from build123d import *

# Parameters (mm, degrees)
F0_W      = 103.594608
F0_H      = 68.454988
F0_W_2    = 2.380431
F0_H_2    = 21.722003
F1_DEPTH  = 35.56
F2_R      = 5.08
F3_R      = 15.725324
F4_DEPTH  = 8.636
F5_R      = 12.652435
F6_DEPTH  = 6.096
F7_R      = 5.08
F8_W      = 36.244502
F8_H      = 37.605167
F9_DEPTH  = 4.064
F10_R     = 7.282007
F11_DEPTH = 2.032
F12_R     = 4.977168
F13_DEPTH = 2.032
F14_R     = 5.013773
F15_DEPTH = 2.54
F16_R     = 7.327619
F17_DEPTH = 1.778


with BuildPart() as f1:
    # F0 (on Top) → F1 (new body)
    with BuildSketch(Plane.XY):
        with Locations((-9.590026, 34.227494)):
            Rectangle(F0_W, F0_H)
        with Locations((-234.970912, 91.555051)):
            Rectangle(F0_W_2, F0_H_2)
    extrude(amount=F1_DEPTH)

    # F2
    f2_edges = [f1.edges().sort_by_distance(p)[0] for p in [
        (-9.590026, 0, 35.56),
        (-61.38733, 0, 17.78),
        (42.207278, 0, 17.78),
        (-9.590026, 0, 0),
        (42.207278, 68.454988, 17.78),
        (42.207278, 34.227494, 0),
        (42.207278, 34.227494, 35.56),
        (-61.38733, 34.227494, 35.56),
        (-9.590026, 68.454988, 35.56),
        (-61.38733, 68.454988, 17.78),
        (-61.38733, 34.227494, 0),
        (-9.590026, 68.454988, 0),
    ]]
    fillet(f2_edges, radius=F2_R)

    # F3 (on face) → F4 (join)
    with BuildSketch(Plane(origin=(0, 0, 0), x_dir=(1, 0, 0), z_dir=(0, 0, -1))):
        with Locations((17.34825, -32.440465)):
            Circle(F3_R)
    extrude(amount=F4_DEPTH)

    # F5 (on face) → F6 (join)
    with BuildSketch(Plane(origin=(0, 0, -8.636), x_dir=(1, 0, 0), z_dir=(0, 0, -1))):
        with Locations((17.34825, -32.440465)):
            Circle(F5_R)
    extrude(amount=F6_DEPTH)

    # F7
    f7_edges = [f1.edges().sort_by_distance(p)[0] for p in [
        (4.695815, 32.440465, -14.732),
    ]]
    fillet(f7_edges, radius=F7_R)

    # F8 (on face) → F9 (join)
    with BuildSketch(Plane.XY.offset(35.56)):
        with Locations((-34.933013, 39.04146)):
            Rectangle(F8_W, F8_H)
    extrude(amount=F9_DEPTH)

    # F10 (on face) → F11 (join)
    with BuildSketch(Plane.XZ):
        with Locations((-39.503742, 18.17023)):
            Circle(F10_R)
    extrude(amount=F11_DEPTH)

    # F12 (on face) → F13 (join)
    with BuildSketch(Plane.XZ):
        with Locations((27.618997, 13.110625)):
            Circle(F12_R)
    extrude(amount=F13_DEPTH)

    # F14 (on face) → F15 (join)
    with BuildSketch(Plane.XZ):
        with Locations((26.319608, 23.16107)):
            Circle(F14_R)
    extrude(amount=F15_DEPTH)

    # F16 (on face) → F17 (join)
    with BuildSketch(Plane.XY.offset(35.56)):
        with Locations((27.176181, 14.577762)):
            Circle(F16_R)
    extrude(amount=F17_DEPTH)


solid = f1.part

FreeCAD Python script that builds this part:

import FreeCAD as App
import Part
import Sketcher

V = App.Vector


def edges_at(feature, points):
    """Names of the edges that pass closest to the given points."""
    edges = feature.Shape.Edges
    near = lambda p: min(range(len(edges)), key=lambda i: edges[i].distToShape(Part.Vertex(*p))[0])
    return sorted({f"Edge{near(p) + 1}" for p in points})

doc = App.newDocument("Part")
params = doc.addObject("Spreadsheet::Sheet", "Params")
for row, (alias, value) in enumerate([
    ("pad1_length", "1.4 in"),
    ("fillet_radius", "0.2 in"),
    ("pad2_length", "0.34 in"),
    ("pad3_length", "0.24 in"),
    ("fillet2_radius", "0.2 in"),
    ("pad4_length", "0.16 in"),
    ("pad5_length", "0.08 in"),
    ("pad6_length", "0.08 in"),
    ("pad7_length", "0.1 in"),
    ("pad8_length", "0.07 in"),
], start=1):
    params.set(f"A{row}", alias)
    params.set(f"B{row}", "=" + value)
    params.setAlias(f"B{row}", alias)

body = doc.addObject("PartDesign::Body", "Body")
body.AllowCompound = True

# Sketch on XY plane
sketch1 = body.newObject("Sketcher::SketchObject", "Sketch")
sketch1.AttachmentSupport = (doc.getObject("XY_Plane"), [""])
sketch1.MapMode = "FlatFace"
sketch1.addGeometry(Part.LineSegment(V(-61.4, 68.5, 0), V(-61.4, 0, 0)), False)
sketch1.addGeometry(Part.LineSegment(V(-61.4, 0, 0), V(42.2, 0, 0)), False)
sketch1.addGeometry(Part.LineSegment(V(42.2, 0, 0), V(42.2, 68.5, 0)), False)
sketch1.addGeometry(Part.LineSegment(V(42.2, 68.5, 0), V(-61.4, 68.5, 0)), False)
sketch1.addGeometry(Part.LineSegment(V(-236.2, 102.4, 0), V(-236.2, 80.7, 0)), False)
sketch1.addGeometry(Part.LineSegment(V(-236.2, 80.7, 0), V(-233.8, 80.7, 0)), False)
sketch1.addGeometry(Part.LineSegment(V(-233.8, 80.7, 0), V(-233.8, 102.4, 0)), False)
sketch1.addGeometry(Part.LineSegment(V(-233.8, 102.4, 0), V(-236.2, 102.4, 0)), False)
sketch1.addConstraint(Sketcher.Constraint("Coincident", 0, 2, 1, 1))
sketch1.addConstraint(Sketcher.Constraint("Coincident", 1, 2, 2, 1))
sketch1.addConstraint(Sketcher.Constraint("Coincident", 2, 2, 3, 1))
sketch1.addConstraint(Sketcher.Constraint("Coincident", 3, 2, 0, 1))
sketch1.addConstraint(Sketcher.Constraint("Coincident", 4, 2, 5, 1))
sketch1.addConstraint(Sketcher.Constraint("Coincident", 5, 2, 6, 1))
sketch1.addConstraint(Sketcher.Constraint("Coincident", 6, 2, 7, 1))
sketch1.addConstraint(Sketcher.Constraint("Coincident", 7, 2, 4, 1))
sketch1.addConstraint(Sketcher.Constraint("Vertical", 0))
sketch1.addConstraint(Sketcher.Constraint("Horizontal", 1))
sketch1.addConstraint(Sketcher.Constraint("Vertical", 2))
sketch1.addConstraint(Sketcher.Constraint("Horizontal", 3))
sketch1.addConstraint(Sketcher.Constraint("Vertical", 4))
sketch1.addConstraint(Sketcher.Constraint("Horizontal", 5))
sketch1.addConstraint(Sketcher.Constraint("Vertical", 6))
sketch1.addConstraint(Sketcher.Constraint("Horizontal", 7))
sketch1.addConstraint(Sketcher.Constraint("PointOnObject", 0, 2, -1))
sketch1.addConstraint(Sketcher.Constraint("DistanceX", 5, 1, 5, 2, 2.380431))
sketch1.addConstraint(Sketcher.Constraint("DistanceY", 0, 2, 0, 1, 68.454988))
sketch1.addConstraint(Sketcher.Constraint("DistanceX", 1, 1, 1, 2, 103.594608))
sketch1.addConstraint(Sketcher.Constraint("DistanceY", 4, 2, 4, 1, 21.722003))
sketch1.addConstraint(Sketcher.Constraint("DistanceX", 0, 2, -1, 1, 61.38733))
sketch1.addConstraint(Sketcher.Constraint("DistanceY", -1, 1, 4, 2, 80.69405))
sketch1.addConstraint(Sketcher.Constraint("DistanceX", 4, 2, -1, 1, 236.161127))
pad1 = body.newObject("PartDesign::Pad", "Pad")
pad1.Profile = sketch1
pad1.setExpression("Length", "Params.pad1_length")
doc.recompute()

fillet = body.newObject("PartDesign::Fillet", "Fillet")
fillet.Base = (pad1, edges_at(pad1, [
    (-9.59, 0, 35.56),
    (-61.387, 0, 17.78),
    (42.207, 0, 17.78),
    (-9.59, 0, 0),
    (42.207, 68.455, 17.78),
    (42.207, 34.227, 0),
    (42.207, 34.227, 35.56),
    (-61.387, 34.227, 35.56),
    (-9.59, 68.455, 35.56),
    (-61.387, 68.455, 17.78),
    (-61.387, 34.227, 0),
    (-9.59, 68.455, 0),
]))
fillet.setExpression("Radius", "Params.fillet_radius")

# Sketch on XY plane
sketch2 = body.newObject("Sketcher::SketchObject", "Sketch001")
sketch2.AttachmentSupport = (doc.getObject("XY_Plane"), [""])
sketch2.MapMode = "FlatFace"
sketch2.addGeometry(Part.Circle(V(17, 32, 0), V(0, 0, 1), 16), False)
sketch2.addConstraint(Sketcher.Constraint("Diameter", 0, 31.450648))
sketch2.addConstraint(Sketcher.Constraint("DistanceX", -1, 1, 0, 3, 17.34825))
sketch2.addConstraint(Sketcher.Constraint("DistanceY", -1, 1, 0, 3, 32.440465))
pad2 = body.newObject("PartDesign::Pad", "Pad001")
pad2.Profile = sketch2
pad2.setExpression("Length", "Params.pad2_length")
pad2.Reversed = True

# Sketch on XY plane
sketch3 = body.newObject("Sketcher::SketchObject", "Sketch002")
sketch3.AttachmentSupport = (doc.getObject("XY_Plane"), [""])
sketch3.MapMode = "FlatFace"
sketch3.AttachmentOffset = App.Placement(V(0, 0, -0.34 * 25.4), App.Rotation())
sketch3.addGeometry(Part.Circle(V(17, 32, 0), V(0, 0, 1), 13), False)
sketch3.addConstraint(Sketcher.Constraint("Diameter", 0, 25.30487))
sketch3.addConstraint(Sketcher.Constraint("DistanceX", -1, 1, 0, 3, 17.34825))
sketch3.addConstraint(Sketcher.Constraint("DistanceY", -1, 1, 0, 3, 32.440465))
pad3 = body.newObject("PartDesign::Pad", "Pad002")
pad3.Profile = sketch3
pad3.setExpression("Length", "Params.pad3_length")
pad3.Reversed = True
doc.recompute()

fillet2 = body.newObject("PartDesign::Fillet", "Fillet001")
fillet2.Base = (pad3, edges_at(pad3, [(4.696, 32.44, -14.732)]))
fillet2.setExpression("Radius", "Params.fillet2_radius")

# Sketch on XY plane
sketch4 = body.newObject("Sketcher::SketchObject", "Sketch003")
sketch4.AttachmentSupport = (doc.getObject("XY_Plane"), [""])
sketch4.MapMode = "FlatFace"
sketch4.AttachmentOffset = App.Placement(V(0, 0, 1.4 * 25.4), App.Rotation())
sketch4.addGeometry(Part.LineSegment(V(-53, 58, 0), V(-53, 20, 0)), False)
sketch4.addGeometry(Part.LineSegment(V(-53, 20, 0), V(-17, 20, 0)), False)
sketch4.addGeometry(Part.LineSegment(V(-17, 20, 0), V(-17, 58, 0)), False)
sketch4.addGeometry(Part.LineSegment(V(-17, 58, 0), V(-53, 58, 0)), False)
sketch4.addConstraint(Sketcher.Constraint("Coincident", 0, 2, 1, 1))
sketch4.addConstraint(Sketcher.Constraint("Coincident", 1, 2, 2, 1))
sketch4.addConstraint(Sketcher.Constraint("Coincident", 2, 2, 3, 1))
sketch4.addConstraint(Sketcher.Constraint("Coincident", 3, 2, 0, 1))
sketch4.addConstraint(Sketcher.Constraint("Vertical", 0))
sketch4.addConstraint(Sketcher.Constraint("Horizontal", 1))
sketch4.addConstraint(Sketcher.Constraint("Vertical", 2))
sketch4.addConstraint(Sketcher.Constraint("Horizontal", 3))
sketch4.addConstraint(Sketcher.Constraint("DistanceX", 1, 1, 1, 2, 36.244502))
sketch4.addConstraint(Sketcher.Constraint("DistanceY", 0, 2, 0, 1, 37.605167))
sketch4.addConstraint(Sketcher.Constraint("DistanceX", 0, 2, -1, 1, 53.055264))
sketch4.addConstraint(Sketcher.Constraint("DistanceY", -1, 1, 0, 2, 20.238876))
pad4 = body.newObject("PartDesign::Pad", "Pad003")
pad4.Profile = sketch4
pad4.setExpression("Length", "Params.pad4_length")

# Sketch on XZ plane
sketch5 = body.newObject("Sketcher::SketchObject", "Sketch004")
sketch5.AttachmentSupport = (doc.getObject("XZ_Plane"), [""])
sketch5.MapMode = "FlatFace"
sketch5.addGeometry(Part.Circle(V(-40, 18, 0), V(0, 0, 1), 7), False)
sketch5.addConstraint(Sketcher.Constraint("Diameter", 0, 14.564014))
sketch5.addConstraint(Sketcher.Constraint("DistanceY", -1, 1, 0, 3, 18.17023))
sketch5.addConstraint(Sketcher.Constraint("DistanceX", 0, 3, -1, 1, 39.503742))
pad5 = body.newObject("PartDesign::Pad", "Pad004")
pad5.Profile = sketch5
pad5.setExpression("Length", "Params.pad5_length")

# Sketch on XZ plane
sketch6 = body.newObject("Sketcher::SketchObject", "Sketch005")
sketch6.AttachmentSupport = (doc.getObject("XZ_Plane"), [""])
sketch6.MapMode = "FlatFace"
sketch6.addGeometry(Part.Circle(V(27.6, 13.1, 0), V(0, 0, 1), 5), False)
sketch6.addConstraint(Sketcher.Constraint("Diameter", 0, 9.954336))
sketch6.addConstraint(Sketcher.Constraint("DistanceX", -1, 1, 0, 3, 27.618997))
sketch6.addConstraint(Sketcher.Constraint("DistanceY", -1, 1, 0, 3, 13.110625))
pad6 = body.newObject("PartDesign::Pad", "Pad005")
pad6.Profile = sketch6
pad6.setExpression("Length", "Params.pad6_length")

# Sketch on XZ plane
sketch7 = body.newObject("Sketcher::SketchObject", "Sketch006")
sketch7.AttachmentSupport = (doc.getObject("XZ_Plane"), [""])
sketch7.MapMode = "FlatFace"
sketch7.addGeometry(Part.Circle(V(26, 23, 0), V(0, 0, 1), 5), False)
sketch7.addConstraint(Sketcher.Constraint("Diameter", 0, 10.027546))
sketch7.addConstraint(Sketcher.Constraint("DistanceY", -1, 1, 0, 3, 23.16107))
sketch7.addConstraint(Sketcher.Constraint("DistanceX", -1, 1, 0, 3, 26.319608))
pad7 = body.newObject("PartDesign::Pad", "Pad006")
pad7.Profile = sketch7
pad7.setExpression("Length", "Params.pad7_length")

# Sketch on XY plane
sketch8 = body.newObject("Sketcher::SketchObject", "Sketch007")
sketch8.AttachmentSupport = (doc.getObject("XY_Plane"), [""])
sketch8.MapMode = "FlatFace"
sketch8.AttachmentOffset = App.Placement(V(0, 0, 1.4 * 25.4), App.Rotation())
sketch8.addGeometry(Part.Circle(V(27, 15, 0), V(0, 0, 1), 7), False)
sketch8.addConstraint(Sketcher.Constraint("Diameter", 0, 14.655238))
sketch8.addConstraint(Sketcher.Constraint("DistanceX", -1, 1, 0, 3, 27.176181))
sketch8.addConstraint(Sketcher.Constraint("DistanceY", -1, 1, 0, 3, 14.577762))
pad8 = body.newObject("PartDesign::Pad", "Pad007")
pad8.Profile = sketch8
pad8.setExpression("Length", "Params.pad8_length")

doc.recompute()
